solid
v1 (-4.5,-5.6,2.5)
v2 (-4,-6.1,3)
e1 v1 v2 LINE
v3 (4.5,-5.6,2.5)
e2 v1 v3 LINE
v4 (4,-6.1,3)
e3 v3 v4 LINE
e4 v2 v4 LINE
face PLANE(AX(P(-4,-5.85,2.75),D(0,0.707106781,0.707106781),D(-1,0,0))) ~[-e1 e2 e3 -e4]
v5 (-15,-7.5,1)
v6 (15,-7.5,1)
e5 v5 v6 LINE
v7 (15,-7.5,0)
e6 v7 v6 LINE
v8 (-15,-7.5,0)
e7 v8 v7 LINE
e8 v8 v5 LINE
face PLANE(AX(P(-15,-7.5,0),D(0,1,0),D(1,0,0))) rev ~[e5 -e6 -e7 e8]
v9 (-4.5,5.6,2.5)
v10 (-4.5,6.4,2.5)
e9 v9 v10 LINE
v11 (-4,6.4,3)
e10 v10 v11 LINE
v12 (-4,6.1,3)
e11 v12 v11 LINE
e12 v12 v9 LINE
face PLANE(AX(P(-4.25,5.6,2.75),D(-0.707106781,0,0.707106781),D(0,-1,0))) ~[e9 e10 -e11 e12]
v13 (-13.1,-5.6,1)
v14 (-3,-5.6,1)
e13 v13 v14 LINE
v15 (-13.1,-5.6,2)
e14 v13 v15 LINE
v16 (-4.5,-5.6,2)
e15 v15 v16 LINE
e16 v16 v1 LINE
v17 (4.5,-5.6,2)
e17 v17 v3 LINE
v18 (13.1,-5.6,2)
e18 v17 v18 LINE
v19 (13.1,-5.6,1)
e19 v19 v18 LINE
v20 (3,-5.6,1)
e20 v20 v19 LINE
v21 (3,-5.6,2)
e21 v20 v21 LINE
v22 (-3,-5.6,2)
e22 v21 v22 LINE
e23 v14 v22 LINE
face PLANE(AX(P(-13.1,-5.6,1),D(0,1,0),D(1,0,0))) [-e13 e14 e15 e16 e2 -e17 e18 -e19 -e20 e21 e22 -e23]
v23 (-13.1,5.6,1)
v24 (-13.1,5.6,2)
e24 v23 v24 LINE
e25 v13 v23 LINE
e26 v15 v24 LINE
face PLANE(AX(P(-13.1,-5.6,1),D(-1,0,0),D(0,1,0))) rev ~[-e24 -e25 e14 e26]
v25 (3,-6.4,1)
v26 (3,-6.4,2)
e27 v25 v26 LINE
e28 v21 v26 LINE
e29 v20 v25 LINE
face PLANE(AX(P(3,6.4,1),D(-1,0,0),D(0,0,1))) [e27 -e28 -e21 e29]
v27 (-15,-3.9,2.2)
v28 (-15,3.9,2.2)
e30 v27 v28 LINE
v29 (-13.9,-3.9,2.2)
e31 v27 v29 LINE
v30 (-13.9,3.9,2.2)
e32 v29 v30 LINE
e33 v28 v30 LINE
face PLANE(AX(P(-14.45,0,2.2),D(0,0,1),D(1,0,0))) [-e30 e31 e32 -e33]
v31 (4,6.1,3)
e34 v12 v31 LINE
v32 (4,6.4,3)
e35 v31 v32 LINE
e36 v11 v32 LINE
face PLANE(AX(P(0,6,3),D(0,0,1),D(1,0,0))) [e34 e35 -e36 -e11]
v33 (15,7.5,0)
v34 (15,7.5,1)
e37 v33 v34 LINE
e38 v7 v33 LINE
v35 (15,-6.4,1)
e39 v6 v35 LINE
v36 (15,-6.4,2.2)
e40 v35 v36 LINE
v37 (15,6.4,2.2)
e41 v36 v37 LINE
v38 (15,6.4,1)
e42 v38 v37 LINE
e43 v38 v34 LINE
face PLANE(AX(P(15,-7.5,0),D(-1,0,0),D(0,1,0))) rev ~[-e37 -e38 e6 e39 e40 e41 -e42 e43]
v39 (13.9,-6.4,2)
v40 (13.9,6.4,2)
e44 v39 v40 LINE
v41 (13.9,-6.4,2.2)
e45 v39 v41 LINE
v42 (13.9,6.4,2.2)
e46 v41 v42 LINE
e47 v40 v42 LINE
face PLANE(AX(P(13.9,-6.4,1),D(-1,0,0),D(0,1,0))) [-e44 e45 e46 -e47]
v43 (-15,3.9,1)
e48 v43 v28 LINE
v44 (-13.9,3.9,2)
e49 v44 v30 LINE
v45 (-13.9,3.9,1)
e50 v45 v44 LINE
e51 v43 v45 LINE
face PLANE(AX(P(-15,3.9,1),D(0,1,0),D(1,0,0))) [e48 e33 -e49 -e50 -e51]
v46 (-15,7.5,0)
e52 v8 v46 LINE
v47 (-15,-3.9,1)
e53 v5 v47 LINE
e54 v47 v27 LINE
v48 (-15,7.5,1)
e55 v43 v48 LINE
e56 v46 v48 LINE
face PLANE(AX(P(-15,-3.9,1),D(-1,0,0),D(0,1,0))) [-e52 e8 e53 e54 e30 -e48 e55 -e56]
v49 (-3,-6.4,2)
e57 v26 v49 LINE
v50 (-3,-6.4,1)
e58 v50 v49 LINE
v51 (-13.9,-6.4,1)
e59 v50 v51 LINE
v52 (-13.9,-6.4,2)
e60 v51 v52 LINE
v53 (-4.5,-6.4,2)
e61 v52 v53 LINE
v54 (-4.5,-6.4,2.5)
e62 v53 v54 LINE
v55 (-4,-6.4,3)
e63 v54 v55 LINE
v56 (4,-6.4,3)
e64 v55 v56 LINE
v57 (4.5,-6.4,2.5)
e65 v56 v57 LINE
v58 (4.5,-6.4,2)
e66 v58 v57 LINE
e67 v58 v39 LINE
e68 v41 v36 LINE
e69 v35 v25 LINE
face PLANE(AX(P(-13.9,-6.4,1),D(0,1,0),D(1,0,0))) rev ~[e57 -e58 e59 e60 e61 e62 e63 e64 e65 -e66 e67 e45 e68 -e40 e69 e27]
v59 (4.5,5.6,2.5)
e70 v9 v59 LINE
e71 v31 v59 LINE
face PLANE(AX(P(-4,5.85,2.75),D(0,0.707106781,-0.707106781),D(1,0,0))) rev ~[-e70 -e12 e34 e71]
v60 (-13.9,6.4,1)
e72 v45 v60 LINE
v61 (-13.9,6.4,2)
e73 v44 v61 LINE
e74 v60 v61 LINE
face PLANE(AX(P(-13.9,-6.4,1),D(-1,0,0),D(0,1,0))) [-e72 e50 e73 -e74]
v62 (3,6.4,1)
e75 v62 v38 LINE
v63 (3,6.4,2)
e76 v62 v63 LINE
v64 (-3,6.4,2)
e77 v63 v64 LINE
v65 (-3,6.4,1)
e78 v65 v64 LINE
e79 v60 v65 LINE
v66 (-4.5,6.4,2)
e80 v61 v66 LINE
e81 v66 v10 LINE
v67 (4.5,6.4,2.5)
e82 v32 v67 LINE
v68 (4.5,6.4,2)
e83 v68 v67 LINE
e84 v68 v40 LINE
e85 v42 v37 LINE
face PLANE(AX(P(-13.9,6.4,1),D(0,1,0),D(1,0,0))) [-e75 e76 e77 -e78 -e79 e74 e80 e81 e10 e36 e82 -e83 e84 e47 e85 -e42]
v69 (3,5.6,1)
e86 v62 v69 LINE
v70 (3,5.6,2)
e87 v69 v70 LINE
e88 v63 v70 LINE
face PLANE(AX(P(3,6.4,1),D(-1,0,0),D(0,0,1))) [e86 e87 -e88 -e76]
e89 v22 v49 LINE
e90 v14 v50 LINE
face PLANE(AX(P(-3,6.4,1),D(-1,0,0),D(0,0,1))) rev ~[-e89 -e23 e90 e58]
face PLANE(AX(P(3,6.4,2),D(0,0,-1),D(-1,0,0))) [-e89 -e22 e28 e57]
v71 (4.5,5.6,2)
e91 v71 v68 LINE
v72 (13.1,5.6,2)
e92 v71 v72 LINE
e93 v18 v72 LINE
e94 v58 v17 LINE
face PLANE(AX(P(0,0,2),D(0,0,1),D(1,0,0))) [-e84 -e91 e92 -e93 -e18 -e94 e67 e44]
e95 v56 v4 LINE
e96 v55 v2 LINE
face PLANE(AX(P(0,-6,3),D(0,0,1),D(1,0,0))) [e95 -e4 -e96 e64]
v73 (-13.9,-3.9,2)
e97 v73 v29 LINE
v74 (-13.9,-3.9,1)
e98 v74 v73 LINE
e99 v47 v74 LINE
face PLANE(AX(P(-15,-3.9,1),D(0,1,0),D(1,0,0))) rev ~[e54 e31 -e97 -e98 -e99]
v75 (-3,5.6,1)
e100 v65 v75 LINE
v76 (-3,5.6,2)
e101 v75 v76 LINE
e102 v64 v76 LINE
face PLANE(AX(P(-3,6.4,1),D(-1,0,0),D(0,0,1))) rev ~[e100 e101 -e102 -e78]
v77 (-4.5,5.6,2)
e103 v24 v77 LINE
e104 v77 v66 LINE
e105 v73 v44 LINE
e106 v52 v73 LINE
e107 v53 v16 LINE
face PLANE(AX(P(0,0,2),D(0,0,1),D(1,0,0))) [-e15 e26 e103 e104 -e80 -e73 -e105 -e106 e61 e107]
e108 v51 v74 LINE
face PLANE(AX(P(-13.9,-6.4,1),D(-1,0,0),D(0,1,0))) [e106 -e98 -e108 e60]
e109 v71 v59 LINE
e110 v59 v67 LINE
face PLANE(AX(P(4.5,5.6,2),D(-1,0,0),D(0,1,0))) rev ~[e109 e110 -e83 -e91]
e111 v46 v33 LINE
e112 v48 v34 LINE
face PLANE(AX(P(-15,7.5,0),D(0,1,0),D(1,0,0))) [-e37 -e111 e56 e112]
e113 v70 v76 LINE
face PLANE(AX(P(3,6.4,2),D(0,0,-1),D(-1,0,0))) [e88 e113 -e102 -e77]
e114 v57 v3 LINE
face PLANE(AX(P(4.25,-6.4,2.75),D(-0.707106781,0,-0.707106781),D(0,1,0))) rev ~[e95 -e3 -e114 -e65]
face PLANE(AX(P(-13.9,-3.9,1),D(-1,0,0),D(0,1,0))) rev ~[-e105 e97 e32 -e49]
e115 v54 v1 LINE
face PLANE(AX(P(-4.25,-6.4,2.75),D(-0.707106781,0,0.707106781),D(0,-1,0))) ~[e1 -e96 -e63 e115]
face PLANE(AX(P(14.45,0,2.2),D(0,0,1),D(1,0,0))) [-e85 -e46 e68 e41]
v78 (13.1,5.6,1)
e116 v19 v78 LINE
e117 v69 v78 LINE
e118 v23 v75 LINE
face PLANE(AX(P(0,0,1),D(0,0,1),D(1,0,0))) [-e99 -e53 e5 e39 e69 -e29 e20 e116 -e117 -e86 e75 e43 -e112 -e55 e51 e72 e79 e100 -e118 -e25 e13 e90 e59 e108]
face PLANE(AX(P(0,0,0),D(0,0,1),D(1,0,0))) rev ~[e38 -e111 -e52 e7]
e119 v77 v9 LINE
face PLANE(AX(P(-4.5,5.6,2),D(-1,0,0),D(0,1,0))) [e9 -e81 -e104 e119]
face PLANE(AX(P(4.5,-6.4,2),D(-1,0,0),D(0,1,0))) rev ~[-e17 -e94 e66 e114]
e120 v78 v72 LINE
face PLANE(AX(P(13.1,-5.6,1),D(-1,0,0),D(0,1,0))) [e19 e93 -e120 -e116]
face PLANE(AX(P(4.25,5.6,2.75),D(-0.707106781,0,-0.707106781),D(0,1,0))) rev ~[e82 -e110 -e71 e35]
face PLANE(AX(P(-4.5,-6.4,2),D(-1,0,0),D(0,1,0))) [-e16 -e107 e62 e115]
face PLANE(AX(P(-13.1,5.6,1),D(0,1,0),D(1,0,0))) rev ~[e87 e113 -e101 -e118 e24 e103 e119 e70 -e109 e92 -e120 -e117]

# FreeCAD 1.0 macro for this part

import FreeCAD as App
import Part
import Sketcher


def edges_at(feature, points):
    """Names of the edges that pass closest to the given points."""
    edges = feature.Shape.Edges
    near = lambda p: min(range(len(edges)), key=lambda i: edges[i].distToShape(Part.Vertex(*p))[0])
    return sorted({f"Edge{near(p) + 1}" for p in points})

doc = App.newDocument("Part")
body = doc.addObject("PartDesign::Body", "Body")

# Sketch on XY plane
sketch1 = body.newObject("Sketcher::SketchObject", "Sketch")
sketch1.AttachmentSupport = (doc.getObject("XY_Plane"), [""])
sketch1.MapMode = "FlatFace"
sketch1.addGeometry([
    Part.LineSegment(App.Vector(-15, 8, 0), App.Vector(-15, -8, 0)),
    Part.LineSegment(App.Vector(-15, -8, 0), App.Vector(15, -8, 0)),
    Part.LineSegment(App.Vector(15, -8, 0), App.Vector(15, 8, 0)),
    Part.LineSegment(App.Vector(15, 8, 0), App.Vector(-15, 8, 0)),
], False)
sketch1.addConstraint([
    Sketcher.Constraint("Coincident", 0, 2, 1, 1),
    Sketcher.Constraint("Coincident", 1, 2, 2, 1),
    Sketcher.Constraint("Coincident", 2, 2, 3, 1),
    Sketcher.Constraint("Coincident", 3, 2, 0, 1),
    Sketcher.Constraint("Vertical", 0),
    Sketcher.Constraint("Horizontal", 1),
    Sketcher.Constraint("Vertical", 2),
    Sketcher.Constraint("Horizontal", 3),
    Sketcher.Constraint("Symmetric", 0, 2, 2, 2, -1, 1),
    Sketcher.Constraint("DistanceX", 1, 1, 1, 2, 30.0),
    Sketcher.Constraint("DistanceY", 0, 2, 0, 1, 15.0),
])
pad1 = body.newObject("PartDesign::Pad", "Pad")
pad1.Profile = sketch1
pad1.Length = 1

# Sketch on XY plane
sketch2 = body.newObject("Sketcher::SketchObject", "Sketch001")
sketch2.AttachmentSupport = (doc.getObject("XY_Plane"), [""])
sketch2.MapMode = "FlatFace"
sketch2.AttachmentOffset = App.Placement(App.Vector(0, 0, 1), App.Rotation())
sketch2.addGeometry([
    Part.LineSegment(App.Vector(-14, 6, 0), App.Vector(-14, -6, 0)),  # 0
    Part.LineSegment(App.Vector(-14, -6, 0), App.Vector(14, -6, 0)),  # 1
    Part.LineSegment(App.Vector(14, -6, 0), App.Vector(14, 6, 0)),  # 2
    Part.LineSegment(App.Vector(14, 6, 0), App.Vector(-14, 6, 0)),  # 3
    Part.LineSegment(App.Vector(13, -6, 0), App.Vector(-13, -6, 0)),  # 4
    Part.LineSegment(App.Vector(-13, -6, 0), App.Vector(-13, 6, 0)),  # 5
    Part.LineSegment(App.Vector(-13, 6, 0), App.Vector(13, 6, 0)),  # 6
    Part.LineSegment(App.Vector(13, 6, 0), App.Vector(13, -6, 0)),  # 7
], False)
sketch2.addConstraint([
    Sketcher.Constraint("Coincident", 0, 2, 1, 1),
    Sketcher.Constraint("Coincident", 1, 2, 2, 1),
    Sketcher.Constraint("Coincident", 2, 2, 3, 1),
    Sketcher.Constraint("Coincident", 3, 2, 0, 1),
    Sketcher.Constraint("Coincident", 4, 2, 5, 1),
    Sketcher.Constraint("Coincident", 5, 2, 6, 1),
    Sketcher.Constraint("Coincident", 6, 2, 7, 1),
    Sketcher.Constraint("Coincident", 7, 2, 4, 1),
    Sketcher.Constraint("Vertical", 0),
    Sketcher.Constraint("Horizontal", 1),
    Sketcher.Constraint("Vertical", 2),
    Sketcher.Constraint("Horizontal", 3),
    Sketcher.Constraint("Horizontal", 4),
    Sketcher.Constraint("Vertical", 5),
    Sketcher.Constraint("Horizontal", 6),
    Sketcher.Constraint("Vertical", 7),
    Sketcher.Constraint("Symmetric", 0, 2, 2, 2, -1, 1),
    Sketcher.Constraint("Symmetric", 4, 2, 6, 2, -1, 1),
    Sketcher.Constraint("DistanceX", 1, 1, 1, 2, 27.8),
    Sketcher.Constraint("DistanceX", 4, 2, 4, 1, 26.2),
    Sketcher.Constraint("DistanceY", 0, 2, 0, 1, 12.8),
    Sketcher.Constraint("DistanceY", 5, 1, 5, 2, 11.2),
])
pad2 = body.newObject("PartDesign::Pad", "Pad001")
pad2.Profile = sketch2
pad2.Length = 1

# Sketch on XY plane
sketch3 = body.newObject("Sketcher::SketchObject", "Sketch002")
sketch3.AttachmentSupport = (doc.getObject("XY_Plane"), [""])
sketch3.MapMode = "FlatFace"
sketch3.AttachmentOffset = App.Placement(App.Vector(0, 0, 1), App.Rotation())
sketch3.addGeometry([
    Part.LineSegment(App.Vector(-15, 3.9, 0), App.Vector(-15, -3.9, 0)),  # 0
    Part.LineSegment(App.Vector(-15, -3.9, 0), App.Vector(-13.9, -3.9, 0)),  # 1
    Part.LineSegment(App.Vector(-13.9, -3.9, 0), App.Vector(-13.9, 3.9, 0)),  # 2
    Part.LineSegment(App.Vector(-13.9, 3.9, 0), App.Vector(-15, 3.9, 0)),  # 3
    Part.LineSegment(App.Vector(13.9, 6.4, 0), App.Vector(13.9, -6.4, 0)),  # 4
    Part.LineSegment(App.Vector(13.9, -6.4, 0), App.Vector(15, -6.4, 0)),  # 5
    Part.LineSegment(App.Vector(15, -6.4, 0), App.Vector(15, 6.4, 0)),  # 6
    Part.LineSegment(App.Vector(15, 6.4, 0), App.Vector(13.9, 6.4, 0)),  # 7
], False)
sketch3.addConstraint([
    Sketcher.Constraint("Coincident", 0, 2, 1, 1),
    Sketcher.Constraint("Coincident", 1, 2, 2, 1),
    Sketcher.Constraint("Coincident", 2, 2, 3, 1),
    Sketcher.Constraint("Coincident", 3, 2, 0, 1),
    Sketcher.Constraint("Coincident", 4, 2, 5, 1),
    Sketcher.Constraint("Coincident", 5, 2, 6, 1),
    Sketcher.Constraint("Coincident", 6, 2, 7, 1),
    Sketcher.Constraint("Coincident", 7, 2, 4, 1),
    Sketcher.Constraint("Vertical", 0),
    Sketcher.Constraint("Horizontal", 1),
    Sketcher.Constraint("Vertical", 2),
    Sketcher.Constraint("Horizontal", 3),
    Sketcher.Constraint("Vertical", 4),
    Sketcher.Constraint("Horizontal", 5),
    Sketcher.Constraint("Vertical", 6),
    Sketcher.Constraint("Horizontal", 7),
    Sketcher.Constraint("Equal", 3, 5),
    Sketcher.Constraint("DistanceX", 1, 1, 1, 2, 1.1),
    Sketcher.Constraint("DistanceY", 0, 2, 0, 1, 7.8),
    Sketcher.Constraint("DistanceY", 4, 2, 4, 1, 12.8),
    Sketcher.Constraint("DistanceX", 0, 2, -1, 1, 15.0),
    Sketcher.Constraint("DistanceX", -1, 1, 5, 2, 15.0),
    Sketcher.Constraint("DistanceY", 0, 2, -1, 1, 3.9),
    Sketcher.Constraint("DistanceY", 4, 2, -1, 1, 6.4),
])
pad3 = body.newObject("PartDesign::Pad", "Pad002")
pad3.Profile = sketch3
pad3.Length = 1.2

# Sketch on XY plane
sketch4 = body.newObject("Sketcher::SketchObject", "Sketch003")
sketch4.AttachmentSupport = (doc.getObject("XY_Plane"), [""])
sketch4.MapMode = "FlatFace"
sketch4.AttachmentOffset = App.Placement(App.Vector(0, 0, 2), App.Rotation())
sketch4.addGeometry([
    Part.LineSegment(App.Vector(-4.5, 6.4, 0), App.Vector(-4.5, 5.6, 0)),  # 0
    Part.LineSegment(App.Vector(-4.5, 5.6, 0), App.Vector(4.5, 5.6, 0)),  # 1
    Part.LineSegment(App.Vector(4.5, 5.6, 0), App.Vector(4.5, 6.4, 0)),  # 2
    Part.LineSegment(App.Vector(4.5, 6.4, 0), App.Vector(-4.5, 6.4, 0)),  # 3
    Part.LineSegment(App.Vector(-4.5, -5.6, 0), App.Vector(-4.5, -6.4, 0)),  # 4
    Part.LineSegment(App.Vector(-4.5, -6.4, 0), App.Vector(4.5, -6.4, 0)),  # 5
    Part.LineSegment(App.Vector(4.5, -6.4, 0), App.Vector(4.5, -5.6, 0)),  # 6
    Part.LineSegment(App.Vector(4.5, -5.6, 0), App.Vector(-4.5, -5.6, 0)),  # 7
], False)
sketch4.addConstraint([
    Sketcher.Constraint("Coincident", 0, 2, 1, 1),
    Sketcher.Constraint("Coincident", 1, 2, 2, 1),
    Sketcher.Constraint("Coincident", 2, 2, 3, 1),
    Sketcher.Constraint("Coincident", 3, 2, 0, 1),
    Sketcher.Constraint("Coincident", 4, 2, 5, 1),
    Sketcher.Constraint("Coincident", 5, 2, 6, 1),
    Sketcher.Constraint("Coincident", 6, 2, 7, 1),
    Sketcher.Constraint("Coincident", 7, 2, 4, 1),
    Sketcher.Constraint("Vertical", 0),
    Sketcher.Constraint("Horizontal", 1),
    Sketcher.Constraint("Vertical", 2),
    Sketcher.Constraint("Horizontal", 3),
    Sketcher.Constraint("Vertical", 4),
    Sketcher.Constraint("Horizontal", 5),
    Sketcher.Constraint("Vertical", 6),
    Sketcher.Constraint("Horizontal", 7),
    Sketcher.Constraint("Symmetric", 2, 2, 4, 2, -1, 1),
    Sketcher.Constraint("Symmetric", 0, 2, 6, 2, -1, 1),
    Sketcher.Constraint("Vertical", 3, 2, 4, 2),
    Sketcher.Constraint("DistanceX", 1, 1, 1, 2, 9.0),
    Sketcher.Constraint("DistanceY", 0, 2, 0, 1, 0.8),
    Sketcher.Constraint("DistanceY", 4, 2, 0, 2, 12.0),
])
pad4 = body.newObject("PartDesign::Pad", "Pad003")
pad4.Profile = sketch4
pad4.Length = 1

# Sketch on XZ plane
sketch5 = body.newObject("Sketcher::SketchObject", "Sketch004")
sketch5.AttachmentSupport = (doc.getObject("XZ_Plane"), [""])
sketch5.MapMode = "FlatFace"
sketch5.AttachmentOffset = App.Placement(App.Vector(0, 0, -6.4), App.Rotation())
sketch5.addGeometry([
    Part.LineSegment(App.Vector(3, 2, 0), App.Vector(3, 1, 0)),
    Part.LineSegment(App.Vector(3, 1, 0), App.Vector(-3, 1, 0)),
    Part.LineSegment(App.Vector(-3, 1, 0), App.Vector(-3, 2, 0)),
    Part.LineSegment(App.Vector(-3, 2, 0), App.Vector(3, 2, 0)),
], False)
sketch5.addConstraint([
    Sketcher.Constraint("Coincident", 0, 2, 1, 1),
    Sketcher.Constraint("Coincident", 1, 2, 2, 1),
    Sketcher.Constraint("Coincident", 2, 2, 3, 1),
    Sketcher.Constraint("Coincident", 3, 2, 0, 1),
    Sketcher.Constraint("Vertical", 0),
    Sketcher.Constraint("Horizontal", 1),
    Sketcher.Constraint("Vertical", 2),
    Sketcher.Constraint("Horizontal", 3),
    Sketcher.Constraint("DistanceX", 1, 2, 1, 1, 6.0),
    Sketcher.Constraint("DistanceY", 0, 2, 0, 1, 1.0),
    Sketcher.Constraint("DistanceX", -1, 1, 0, 2, 3.0),
    Sketcher.Constraint("DistanceY", -1, 1, 0, 2, 1.0),
])
pocket1 = body.newObject("PartDesign::Pocket", "Pocket")
pocket1.Profile = sketch5
pocket1.Type = "ThroughAll"
pocket1.Reversed = True
doc.recompute()

chamfer = body.newObject("PartDesign::Chamfer", "Chamfer")
chamfer.Base = (pocket1, edges_at(pocket1, [
    (-4.5, -6, 3),
    (-4.5, 6, 3),
    (4.5, 6, 3),
    (4.5, -6, 3),
]))
chamfer.Size = 0.5
doc.recompute()

chamfer2 = body.newObject("PartDesign::Chamfer", "Chamfer001")
chamfer2.Base = (chamfer, edges_at(chamfer, [(0, 5.6, 3), (0, -5.6, 3)]))
chamfer2.Size = 0.5

doc.recompute()
